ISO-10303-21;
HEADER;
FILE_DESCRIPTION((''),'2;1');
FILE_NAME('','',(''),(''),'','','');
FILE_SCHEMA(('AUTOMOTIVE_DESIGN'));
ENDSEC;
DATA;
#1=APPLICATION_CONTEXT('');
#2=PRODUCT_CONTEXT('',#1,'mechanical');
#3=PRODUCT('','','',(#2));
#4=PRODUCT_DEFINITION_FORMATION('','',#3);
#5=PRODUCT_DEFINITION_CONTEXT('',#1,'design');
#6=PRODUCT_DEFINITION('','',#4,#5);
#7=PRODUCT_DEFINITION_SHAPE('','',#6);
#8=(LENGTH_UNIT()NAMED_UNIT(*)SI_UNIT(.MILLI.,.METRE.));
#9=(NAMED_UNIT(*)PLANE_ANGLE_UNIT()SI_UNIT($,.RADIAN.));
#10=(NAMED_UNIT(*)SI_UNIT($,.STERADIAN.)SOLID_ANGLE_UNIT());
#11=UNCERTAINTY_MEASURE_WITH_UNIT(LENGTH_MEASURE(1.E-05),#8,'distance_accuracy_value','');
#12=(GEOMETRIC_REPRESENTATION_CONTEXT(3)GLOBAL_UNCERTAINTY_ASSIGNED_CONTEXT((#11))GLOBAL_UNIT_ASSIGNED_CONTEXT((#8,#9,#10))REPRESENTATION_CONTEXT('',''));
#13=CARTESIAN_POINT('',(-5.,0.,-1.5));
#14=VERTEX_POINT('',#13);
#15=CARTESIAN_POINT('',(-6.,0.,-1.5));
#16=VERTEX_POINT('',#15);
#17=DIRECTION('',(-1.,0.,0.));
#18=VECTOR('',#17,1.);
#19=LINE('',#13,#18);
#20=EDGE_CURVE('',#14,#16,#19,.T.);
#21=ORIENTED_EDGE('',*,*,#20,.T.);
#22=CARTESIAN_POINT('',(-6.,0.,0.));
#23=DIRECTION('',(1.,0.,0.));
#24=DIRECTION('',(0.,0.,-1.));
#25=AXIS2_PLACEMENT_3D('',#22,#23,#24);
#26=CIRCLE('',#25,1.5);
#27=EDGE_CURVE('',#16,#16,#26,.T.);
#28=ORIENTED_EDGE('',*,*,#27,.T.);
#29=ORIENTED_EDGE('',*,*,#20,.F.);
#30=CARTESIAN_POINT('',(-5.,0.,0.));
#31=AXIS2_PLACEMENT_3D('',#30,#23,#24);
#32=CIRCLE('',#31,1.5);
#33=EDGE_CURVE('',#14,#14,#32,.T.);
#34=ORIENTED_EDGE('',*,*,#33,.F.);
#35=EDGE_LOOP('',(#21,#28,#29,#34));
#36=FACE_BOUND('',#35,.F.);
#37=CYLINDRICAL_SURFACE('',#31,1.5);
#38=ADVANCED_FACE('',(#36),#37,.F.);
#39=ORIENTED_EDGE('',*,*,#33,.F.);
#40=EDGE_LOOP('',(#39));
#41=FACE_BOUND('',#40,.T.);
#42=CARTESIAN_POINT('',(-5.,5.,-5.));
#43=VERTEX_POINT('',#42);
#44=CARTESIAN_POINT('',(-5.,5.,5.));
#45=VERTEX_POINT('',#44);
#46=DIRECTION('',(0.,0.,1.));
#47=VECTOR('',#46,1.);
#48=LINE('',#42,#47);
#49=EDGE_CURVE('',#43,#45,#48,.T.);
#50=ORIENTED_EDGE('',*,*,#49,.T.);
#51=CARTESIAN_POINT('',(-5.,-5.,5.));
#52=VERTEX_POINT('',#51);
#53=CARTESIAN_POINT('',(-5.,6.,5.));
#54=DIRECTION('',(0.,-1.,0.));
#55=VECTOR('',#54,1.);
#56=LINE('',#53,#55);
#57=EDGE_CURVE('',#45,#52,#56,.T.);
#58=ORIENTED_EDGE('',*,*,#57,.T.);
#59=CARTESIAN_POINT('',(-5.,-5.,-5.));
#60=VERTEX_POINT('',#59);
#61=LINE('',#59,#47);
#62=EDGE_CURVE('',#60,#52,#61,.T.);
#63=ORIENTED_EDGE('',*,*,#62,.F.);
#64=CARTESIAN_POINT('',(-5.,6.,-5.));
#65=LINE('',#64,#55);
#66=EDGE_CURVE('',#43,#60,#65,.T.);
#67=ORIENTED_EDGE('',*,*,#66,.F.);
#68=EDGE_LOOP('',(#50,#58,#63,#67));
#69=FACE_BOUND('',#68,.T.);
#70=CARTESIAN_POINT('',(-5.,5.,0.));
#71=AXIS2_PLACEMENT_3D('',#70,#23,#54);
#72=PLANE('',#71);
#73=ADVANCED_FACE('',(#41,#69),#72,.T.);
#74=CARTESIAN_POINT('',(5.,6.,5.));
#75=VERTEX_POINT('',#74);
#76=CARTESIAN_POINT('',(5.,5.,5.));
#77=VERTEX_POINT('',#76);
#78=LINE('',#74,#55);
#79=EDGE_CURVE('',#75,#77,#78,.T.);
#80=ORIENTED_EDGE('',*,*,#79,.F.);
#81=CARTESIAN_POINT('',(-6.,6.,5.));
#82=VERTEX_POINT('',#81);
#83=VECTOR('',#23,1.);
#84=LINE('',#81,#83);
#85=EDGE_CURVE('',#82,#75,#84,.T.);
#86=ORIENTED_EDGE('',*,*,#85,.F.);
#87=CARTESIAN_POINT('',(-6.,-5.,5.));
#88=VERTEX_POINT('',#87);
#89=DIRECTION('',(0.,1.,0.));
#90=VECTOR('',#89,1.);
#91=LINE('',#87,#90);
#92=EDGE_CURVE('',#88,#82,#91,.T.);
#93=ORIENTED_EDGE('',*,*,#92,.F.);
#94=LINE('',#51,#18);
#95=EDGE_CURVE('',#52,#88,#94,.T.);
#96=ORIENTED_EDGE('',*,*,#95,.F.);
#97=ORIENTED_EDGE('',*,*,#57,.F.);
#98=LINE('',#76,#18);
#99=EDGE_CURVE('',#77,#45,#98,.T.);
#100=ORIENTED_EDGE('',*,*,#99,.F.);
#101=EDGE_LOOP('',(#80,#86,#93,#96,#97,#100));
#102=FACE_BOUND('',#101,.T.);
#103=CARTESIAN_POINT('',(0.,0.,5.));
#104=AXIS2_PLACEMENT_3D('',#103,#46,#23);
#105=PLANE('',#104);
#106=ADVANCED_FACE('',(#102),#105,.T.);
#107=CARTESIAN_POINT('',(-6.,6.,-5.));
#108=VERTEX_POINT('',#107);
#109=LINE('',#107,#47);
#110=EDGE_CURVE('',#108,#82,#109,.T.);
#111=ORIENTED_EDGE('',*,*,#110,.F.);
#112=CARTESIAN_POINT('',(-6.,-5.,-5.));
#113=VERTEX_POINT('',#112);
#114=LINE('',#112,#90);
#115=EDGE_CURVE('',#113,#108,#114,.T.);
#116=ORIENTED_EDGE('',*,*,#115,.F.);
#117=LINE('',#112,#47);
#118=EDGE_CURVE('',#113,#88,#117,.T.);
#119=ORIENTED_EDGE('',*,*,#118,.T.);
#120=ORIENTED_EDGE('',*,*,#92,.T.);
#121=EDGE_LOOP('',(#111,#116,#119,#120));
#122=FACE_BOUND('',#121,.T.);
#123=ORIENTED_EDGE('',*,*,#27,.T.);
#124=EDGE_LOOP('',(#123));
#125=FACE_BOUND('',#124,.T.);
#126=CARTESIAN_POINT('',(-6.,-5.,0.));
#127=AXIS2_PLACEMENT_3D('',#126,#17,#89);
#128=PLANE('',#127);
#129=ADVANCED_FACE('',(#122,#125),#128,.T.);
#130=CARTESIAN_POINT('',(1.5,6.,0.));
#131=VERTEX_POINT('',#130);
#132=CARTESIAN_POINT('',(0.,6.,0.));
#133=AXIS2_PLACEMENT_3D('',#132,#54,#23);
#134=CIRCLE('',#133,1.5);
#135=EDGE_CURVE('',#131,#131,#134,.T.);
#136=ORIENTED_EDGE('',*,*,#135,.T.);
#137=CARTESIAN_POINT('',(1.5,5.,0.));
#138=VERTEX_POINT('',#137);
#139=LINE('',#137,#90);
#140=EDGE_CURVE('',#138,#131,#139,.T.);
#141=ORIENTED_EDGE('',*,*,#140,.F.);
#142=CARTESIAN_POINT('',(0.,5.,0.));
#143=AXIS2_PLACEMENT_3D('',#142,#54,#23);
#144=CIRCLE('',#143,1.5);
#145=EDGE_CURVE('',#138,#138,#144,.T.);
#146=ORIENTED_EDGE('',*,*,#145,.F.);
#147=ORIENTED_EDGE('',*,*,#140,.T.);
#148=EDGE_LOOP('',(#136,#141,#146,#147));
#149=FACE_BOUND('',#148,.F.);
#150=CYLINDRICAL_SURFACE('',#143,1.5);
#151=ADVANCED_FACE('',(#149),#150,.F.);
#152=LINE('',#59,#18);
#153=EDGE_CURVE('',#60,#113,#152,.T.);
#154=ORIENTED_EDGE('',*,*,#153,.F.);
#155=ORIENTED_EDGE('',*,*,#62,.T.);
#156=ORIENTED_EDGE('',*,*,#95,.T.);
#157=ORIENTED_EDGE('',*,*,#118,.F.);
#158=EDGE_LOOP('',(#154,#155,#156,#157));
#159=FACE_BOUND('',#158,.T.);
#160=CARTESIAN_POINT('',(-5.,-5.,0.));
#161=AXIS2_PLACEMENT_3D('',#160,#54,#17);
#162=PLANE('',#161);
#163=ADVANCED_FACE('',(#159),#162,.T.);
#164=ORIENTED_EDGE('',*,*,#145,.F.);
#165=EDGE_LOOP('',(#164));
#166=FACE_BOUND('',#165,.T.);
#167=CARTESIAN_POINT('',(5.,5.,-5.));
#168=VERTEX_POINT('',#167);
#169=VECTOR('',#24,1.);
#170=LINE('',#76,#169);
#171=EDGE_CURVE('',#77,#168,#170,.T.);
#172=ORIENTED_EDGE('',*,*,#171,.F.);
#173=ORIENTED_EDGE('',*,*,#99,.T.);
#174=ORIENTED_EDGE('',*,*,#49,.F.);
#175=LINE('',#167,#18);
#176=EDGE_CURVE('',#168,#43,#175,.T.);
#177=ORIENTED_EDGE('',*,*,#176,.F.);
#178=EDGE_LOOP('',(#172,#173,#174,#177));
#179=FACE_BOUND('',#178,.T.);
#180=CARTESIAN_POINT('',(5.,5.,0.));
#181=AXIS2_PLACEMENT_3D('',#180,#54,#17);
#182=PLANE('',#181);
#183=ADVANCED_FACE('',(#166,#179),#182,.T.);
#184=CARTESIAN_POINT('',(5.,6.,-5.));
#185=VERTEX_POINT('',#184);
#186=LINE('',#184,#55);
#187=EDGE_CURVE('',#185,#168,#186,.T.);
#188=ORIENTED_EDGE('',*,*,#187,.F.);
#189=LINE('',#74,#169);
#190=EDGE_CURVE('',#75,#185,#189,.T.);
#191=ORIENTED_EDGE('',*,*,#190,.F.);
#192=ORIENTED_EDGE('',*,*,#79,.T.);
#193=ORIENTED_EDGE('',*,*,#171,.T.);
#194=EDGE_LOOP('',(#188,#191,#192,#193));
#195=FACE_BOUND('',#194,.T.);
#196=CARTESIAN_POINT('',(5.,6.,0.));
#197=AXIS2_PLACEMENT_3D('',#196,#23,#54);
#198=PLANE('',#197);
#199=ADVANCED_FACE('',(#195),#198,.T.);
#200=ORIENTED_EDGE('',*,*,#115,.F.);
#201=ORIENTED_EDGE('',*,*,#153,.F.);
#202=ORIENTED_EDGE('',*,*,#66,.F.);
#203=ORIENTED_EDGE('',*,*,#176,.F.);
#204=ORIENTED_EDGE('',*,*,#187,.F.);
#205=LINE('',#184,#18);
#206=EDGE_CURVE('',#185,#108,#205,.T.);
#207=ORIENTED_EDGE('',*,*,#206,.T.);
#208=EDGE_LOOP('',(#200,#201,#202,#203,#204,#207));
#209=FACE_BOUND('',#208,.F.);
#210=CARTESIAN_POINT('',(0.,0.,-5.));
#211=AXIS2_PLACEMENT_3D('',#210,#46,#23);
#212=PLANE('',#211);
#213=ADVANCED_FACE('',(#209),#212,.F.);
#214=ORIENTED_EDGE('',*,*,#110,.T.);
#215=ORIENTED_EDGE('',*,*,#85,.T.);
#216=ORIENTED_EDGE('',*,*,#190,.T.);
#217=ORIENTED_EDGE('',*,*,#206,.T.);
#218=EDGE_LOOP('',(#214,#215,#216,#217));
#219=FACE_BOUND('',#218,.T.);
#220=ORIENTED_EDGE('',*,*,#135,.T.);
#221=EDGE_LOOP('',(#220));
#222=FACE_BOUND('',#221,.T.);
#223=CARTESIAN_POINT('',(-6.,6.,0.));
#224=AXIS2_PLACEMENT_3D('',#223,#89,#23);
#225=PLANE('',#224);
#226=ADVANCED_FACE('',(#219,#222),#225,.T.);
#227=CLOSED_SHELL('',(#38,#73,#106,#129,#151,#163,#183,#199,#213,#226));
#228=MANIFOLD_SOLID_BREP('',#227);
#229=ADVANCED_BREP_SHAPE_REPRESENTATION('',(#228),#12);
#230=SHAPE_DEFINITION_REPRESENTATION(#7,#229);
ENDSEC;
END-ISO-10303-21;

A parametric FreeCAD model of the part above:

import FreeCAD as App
import Part
import Sketcher

V = App.Vector
Q = App.Units.Quantity


def add_polygon(sketch, points):
    """Adds a closed chain of lines whose ends are joined by coincident constraints."""
    first, n = sketch.GeometryCount, len(points)
    for a, b in zip(points, points[1:] + points[:1]):
        sketch.addGeometry(Part.LineSegment(App.Vector(*a, 0), App.Vector(*b, 0)), False)
    for i in range(n):
        sketch.addConstraint(Sketcher.Constraint("Coincident", first + i, 2, first + (i + 1) % n, 1))

doc = App.newDocument("Part")
body = doc.addObject("PartDesign::Body", "Body")

# Sketch on XY plane
sketch1 = body.newObject("Sketcher::SketchObject", "Sketch")
sketch1.AttachmentSupport = (doc.getObject("XY_Plane"), [""])
sketch1.MapMode = "FlatFace"
add_polygon(sketch1, [(-6, 6), (-6, -5), (-5, -5), (-5, 5), (5, 5), (5, 6)])  # lines 0-5
sketch1.addConstraint([
    Sketcher.Constraint("Vertical", 0),
    Sketcher.Constraint("Horizontal", 1),
    Sketcher.Constraint("Vertical", 2),
    Sketcher.Constraint("Horizontal", 3),
    Sketcher.Constraint("Vertical", 4),
    Sketcher.Constraint("Horizontal", 5),
    Sketcher.Constraint("Symmetric", 1, 2, 3, 2, -1, 1),
    Sketcher.Constraint("Equal", 5, 0),
    Sketcher.Constraint("Equal", 3, 2),
    Sketcher.Constraint("DistanceX", 1, 1, 1, 2, Q("1 mm")),
    Sketcher.Constraint("DistanceX", 3, 1, 3, 2, Q("10 mm")),
])
pad1 = body.newObject("PartDesign::Pad", "Pad")
pad1.Profile = sketch1
pad1.Length = 10
pad1.Midplane = True

# Sketch on XZ plane
sketch2 = body.newObject("Sketcher::SketchObject", "Sketch001")
sketch2.AttachmentSupport = (doc.getObject("XZ_Plane"), [""])
sketch2.MapMode = "FlatFace"
sketch2.AttachmentOffset = App.Placement(V(0, 0, -5), App.Rotation())
sketch2.addGeometry(Part.Circle(V(0, 0, 0), V(0, 0, 1), 1.5), False)
sketch2.addConstraint([
    Sketcher.Constraint("Coincident", 0, 3, -1, 1),
    Sketcher.Constraint("Diameter", 0, Q("3 mm")),
])
pocket1 = body.newObject("PartDesign::Pocket", "Pocket")
pocket1.Profile = sketch2
pocket1.Type = "ThroughAll"

# Sketch on YZ plane
sketch3 = body.newObject("Sketcher::SketchObject", "Sketch002")
sketch3.AttachmentSupport = (doc.getObject("YZ_Plane"), [""])
sketch3.MapMode = "FlatFace"
sketch3.AttachmentOffset = App.Placement(V(0, 0, -5), App.Rotation())
sketch3.addGeometry(Part.Circle(V(0, 0, 0), V(0, 0, 1), 1.5), False)
sketch3.addConstraint([
    Sketcher.Constraint("Coincident", 0, 3, -1, 1),
    Sketcher.Constraint("Diameter", 0, Q("3 mm")),
])
pocket2 = body.newObject("PartDesign::Pocket", "Pocket001")
pocket2.Profile = sketch3
pocket2.Type = "ThroughAll"

doc.recompute()
